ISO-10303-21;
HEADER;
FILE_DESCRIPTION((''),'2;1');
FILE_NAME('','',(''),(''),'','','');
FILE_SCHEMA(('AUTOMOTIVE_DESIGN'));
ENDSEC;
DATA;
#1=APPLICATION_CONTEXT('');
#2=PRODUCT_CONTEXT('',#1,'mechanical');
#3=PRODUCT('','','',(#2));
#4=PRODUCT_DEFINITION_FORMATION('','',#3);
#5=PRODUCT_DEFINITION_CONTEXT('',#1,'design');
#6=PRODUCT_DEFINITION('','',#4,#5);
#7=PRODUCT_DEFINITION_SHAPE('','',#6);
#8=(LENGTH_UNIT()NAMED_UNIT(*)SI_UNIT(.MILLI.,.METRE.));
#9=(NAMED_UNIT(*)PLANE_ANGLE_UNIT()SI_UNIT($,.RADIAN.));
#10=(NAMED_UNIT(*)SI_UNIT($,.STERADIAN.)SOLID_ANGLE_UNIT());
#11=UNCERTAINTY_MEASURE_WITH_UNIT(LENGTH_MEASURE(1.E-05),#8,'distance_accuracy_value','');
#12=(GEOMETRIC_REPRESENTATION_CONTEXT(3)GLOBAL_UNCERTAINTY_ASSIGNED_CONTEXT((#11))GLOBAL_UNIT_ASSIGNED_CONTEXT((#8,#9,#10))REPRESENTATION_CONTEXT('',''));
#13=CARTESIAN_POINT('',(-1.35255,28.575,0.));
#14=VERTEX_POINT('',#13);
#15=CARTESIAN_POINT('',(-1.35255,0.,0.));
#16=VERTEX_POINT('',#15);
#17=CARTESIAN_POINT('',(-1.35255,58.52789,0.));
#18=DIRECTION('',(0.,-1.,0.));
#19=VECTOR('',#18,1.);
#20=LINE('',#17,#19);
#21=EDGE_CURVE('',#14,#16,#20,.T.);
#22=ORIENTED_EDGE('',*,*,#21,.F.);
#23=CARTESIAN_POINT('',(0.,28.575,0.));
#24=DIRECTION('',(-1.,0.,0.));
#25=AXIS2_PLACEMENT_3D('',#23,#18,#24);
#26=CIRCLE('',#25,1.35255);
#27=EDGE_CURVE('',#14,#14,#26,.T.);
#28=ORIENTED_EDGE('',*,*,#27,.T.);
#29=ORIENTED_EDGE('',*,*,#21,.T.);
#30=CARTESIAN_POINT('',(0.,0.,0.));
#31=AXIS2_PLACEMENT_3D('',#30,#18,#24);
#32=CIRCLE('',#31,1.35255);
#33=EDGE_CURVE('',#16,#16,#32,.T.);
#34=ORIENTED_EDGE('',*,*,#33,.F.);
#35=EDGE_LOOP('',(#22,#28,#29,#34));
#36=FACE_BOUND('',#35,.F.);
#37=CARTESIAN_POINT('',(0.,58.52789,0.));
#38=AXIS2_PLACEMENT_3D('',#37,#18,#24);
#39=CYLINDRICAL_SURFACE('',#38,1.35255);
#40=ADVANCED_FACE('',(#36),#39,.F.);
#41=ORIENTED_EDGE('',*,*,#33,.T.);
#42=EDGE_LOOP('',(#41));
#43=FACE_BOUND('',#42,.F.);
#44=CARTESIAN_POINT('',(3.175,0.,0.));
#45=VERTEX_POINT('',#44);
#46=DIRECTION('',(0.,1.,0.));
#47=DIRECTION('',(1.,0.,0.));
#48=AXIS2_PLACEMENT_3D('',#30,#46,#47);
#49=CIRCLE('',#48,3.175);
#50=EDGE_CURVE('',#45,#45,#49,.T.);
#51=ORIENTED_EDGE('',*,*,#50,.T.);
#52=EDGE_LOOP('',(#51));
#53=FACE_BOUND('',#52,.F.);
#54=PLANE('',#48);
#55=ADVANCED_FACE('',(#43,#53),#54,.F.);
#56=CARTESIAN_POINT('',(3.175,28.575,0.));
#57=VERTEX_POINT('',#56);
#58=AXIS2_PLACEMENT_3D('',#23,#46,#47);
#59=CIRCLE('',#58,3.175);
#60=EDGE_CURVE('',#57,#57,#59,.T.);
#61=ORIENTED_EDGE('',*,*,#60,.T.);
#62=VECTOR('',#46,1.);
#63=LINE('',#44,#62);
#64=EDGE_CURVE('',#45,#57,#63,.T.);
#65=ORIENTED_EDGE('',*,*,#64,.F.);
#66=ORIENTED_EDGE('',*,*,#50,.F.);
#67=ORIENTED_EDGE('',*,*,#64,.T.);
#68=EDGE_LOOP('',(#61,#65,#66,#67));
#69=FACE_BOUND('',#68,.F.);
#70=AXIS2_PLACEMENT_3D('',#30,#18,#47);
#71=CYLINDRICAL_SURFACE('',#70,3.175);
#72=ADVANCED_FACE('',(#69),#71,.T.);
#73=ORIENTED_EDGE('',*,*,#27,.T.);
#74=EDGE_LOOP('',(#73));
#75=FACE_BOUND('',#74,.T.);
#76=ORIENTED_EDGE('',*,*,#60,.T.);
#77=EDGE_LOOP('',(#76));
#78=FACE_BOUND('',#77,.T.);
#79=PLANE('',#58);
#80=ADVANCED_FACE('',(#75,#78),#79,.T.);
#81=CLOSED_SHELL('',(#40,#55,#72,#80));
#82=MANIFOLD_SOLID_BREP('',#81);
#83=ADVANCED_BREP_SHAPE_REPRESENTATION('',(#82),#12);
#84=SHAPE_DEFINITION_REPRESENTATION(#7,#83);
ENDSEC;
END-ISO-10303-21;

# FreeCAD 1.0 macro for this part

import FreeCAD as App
import Part
import Sketcher
from FreeCAD import Vector
Q = App.Units.Quantity

doc = App.newDocument("Part")
body = doc.addObject("PartDesign::Body", "Body")

# Sketch on XZ plane
sketch1 = body.newObject("Sketcher::SketchObject", "Sketch")
sketch1.AttachmentSupport = (doc.getObject("XZ_Plane"), [""])
sketch1.MapMode = "FlatFace"
sketch1.addGeometry(Part.Circle(Vector(0, 0, 0), Vector(0, 0, 1), 3.2), False)
sketch1.addConstraint([
    Sketcher.Constraint("Coincident", 0, 3, -1, 1),
    Sketcher.Constraint("Diameter", 0, Q("0.25 in")),
])
pad1 = body.newObject("PartDesign::Pad", "Pad")
pad1.Profile = sketch1
pad1.Length = Q("1.125 in")
pad1.Reversed = True

# Sketch on XZ plane
sketch2 = body.newObject("Sketcher::SketchObject", "Sketch001")
sketch2.AttachmentSupport = (doc.getObject("XZ_Plane"), [""])
sketch2.MapMode = "FlatFace"
sketch2.AttachmentOffset = App.Placement(Vector(0, 0, -1.125 * 25.4), App.Rotation())
sketch2.addGeometry(Part.Circle(Vector(0, 0, 0), Vector(0, 0, 1), 1.4), False)
sketch2.addConstraint([
    Sketcher.Constraint("Coincident", 0, 3, -1, 1),
    Sketcher.Constraint("Diameter", 0, Q("0.1065 in")),
])
doc.recompute()
hole = body.newObject("PartDesign::Hole", "Hole")
hole.Profile = sketch2
hole.ThreadType = "None"
hole.Diameter = Q("0.1065 in")
hole.DepthType = "ThroughAll"
hole.Reversed = True

doc.recompute()
